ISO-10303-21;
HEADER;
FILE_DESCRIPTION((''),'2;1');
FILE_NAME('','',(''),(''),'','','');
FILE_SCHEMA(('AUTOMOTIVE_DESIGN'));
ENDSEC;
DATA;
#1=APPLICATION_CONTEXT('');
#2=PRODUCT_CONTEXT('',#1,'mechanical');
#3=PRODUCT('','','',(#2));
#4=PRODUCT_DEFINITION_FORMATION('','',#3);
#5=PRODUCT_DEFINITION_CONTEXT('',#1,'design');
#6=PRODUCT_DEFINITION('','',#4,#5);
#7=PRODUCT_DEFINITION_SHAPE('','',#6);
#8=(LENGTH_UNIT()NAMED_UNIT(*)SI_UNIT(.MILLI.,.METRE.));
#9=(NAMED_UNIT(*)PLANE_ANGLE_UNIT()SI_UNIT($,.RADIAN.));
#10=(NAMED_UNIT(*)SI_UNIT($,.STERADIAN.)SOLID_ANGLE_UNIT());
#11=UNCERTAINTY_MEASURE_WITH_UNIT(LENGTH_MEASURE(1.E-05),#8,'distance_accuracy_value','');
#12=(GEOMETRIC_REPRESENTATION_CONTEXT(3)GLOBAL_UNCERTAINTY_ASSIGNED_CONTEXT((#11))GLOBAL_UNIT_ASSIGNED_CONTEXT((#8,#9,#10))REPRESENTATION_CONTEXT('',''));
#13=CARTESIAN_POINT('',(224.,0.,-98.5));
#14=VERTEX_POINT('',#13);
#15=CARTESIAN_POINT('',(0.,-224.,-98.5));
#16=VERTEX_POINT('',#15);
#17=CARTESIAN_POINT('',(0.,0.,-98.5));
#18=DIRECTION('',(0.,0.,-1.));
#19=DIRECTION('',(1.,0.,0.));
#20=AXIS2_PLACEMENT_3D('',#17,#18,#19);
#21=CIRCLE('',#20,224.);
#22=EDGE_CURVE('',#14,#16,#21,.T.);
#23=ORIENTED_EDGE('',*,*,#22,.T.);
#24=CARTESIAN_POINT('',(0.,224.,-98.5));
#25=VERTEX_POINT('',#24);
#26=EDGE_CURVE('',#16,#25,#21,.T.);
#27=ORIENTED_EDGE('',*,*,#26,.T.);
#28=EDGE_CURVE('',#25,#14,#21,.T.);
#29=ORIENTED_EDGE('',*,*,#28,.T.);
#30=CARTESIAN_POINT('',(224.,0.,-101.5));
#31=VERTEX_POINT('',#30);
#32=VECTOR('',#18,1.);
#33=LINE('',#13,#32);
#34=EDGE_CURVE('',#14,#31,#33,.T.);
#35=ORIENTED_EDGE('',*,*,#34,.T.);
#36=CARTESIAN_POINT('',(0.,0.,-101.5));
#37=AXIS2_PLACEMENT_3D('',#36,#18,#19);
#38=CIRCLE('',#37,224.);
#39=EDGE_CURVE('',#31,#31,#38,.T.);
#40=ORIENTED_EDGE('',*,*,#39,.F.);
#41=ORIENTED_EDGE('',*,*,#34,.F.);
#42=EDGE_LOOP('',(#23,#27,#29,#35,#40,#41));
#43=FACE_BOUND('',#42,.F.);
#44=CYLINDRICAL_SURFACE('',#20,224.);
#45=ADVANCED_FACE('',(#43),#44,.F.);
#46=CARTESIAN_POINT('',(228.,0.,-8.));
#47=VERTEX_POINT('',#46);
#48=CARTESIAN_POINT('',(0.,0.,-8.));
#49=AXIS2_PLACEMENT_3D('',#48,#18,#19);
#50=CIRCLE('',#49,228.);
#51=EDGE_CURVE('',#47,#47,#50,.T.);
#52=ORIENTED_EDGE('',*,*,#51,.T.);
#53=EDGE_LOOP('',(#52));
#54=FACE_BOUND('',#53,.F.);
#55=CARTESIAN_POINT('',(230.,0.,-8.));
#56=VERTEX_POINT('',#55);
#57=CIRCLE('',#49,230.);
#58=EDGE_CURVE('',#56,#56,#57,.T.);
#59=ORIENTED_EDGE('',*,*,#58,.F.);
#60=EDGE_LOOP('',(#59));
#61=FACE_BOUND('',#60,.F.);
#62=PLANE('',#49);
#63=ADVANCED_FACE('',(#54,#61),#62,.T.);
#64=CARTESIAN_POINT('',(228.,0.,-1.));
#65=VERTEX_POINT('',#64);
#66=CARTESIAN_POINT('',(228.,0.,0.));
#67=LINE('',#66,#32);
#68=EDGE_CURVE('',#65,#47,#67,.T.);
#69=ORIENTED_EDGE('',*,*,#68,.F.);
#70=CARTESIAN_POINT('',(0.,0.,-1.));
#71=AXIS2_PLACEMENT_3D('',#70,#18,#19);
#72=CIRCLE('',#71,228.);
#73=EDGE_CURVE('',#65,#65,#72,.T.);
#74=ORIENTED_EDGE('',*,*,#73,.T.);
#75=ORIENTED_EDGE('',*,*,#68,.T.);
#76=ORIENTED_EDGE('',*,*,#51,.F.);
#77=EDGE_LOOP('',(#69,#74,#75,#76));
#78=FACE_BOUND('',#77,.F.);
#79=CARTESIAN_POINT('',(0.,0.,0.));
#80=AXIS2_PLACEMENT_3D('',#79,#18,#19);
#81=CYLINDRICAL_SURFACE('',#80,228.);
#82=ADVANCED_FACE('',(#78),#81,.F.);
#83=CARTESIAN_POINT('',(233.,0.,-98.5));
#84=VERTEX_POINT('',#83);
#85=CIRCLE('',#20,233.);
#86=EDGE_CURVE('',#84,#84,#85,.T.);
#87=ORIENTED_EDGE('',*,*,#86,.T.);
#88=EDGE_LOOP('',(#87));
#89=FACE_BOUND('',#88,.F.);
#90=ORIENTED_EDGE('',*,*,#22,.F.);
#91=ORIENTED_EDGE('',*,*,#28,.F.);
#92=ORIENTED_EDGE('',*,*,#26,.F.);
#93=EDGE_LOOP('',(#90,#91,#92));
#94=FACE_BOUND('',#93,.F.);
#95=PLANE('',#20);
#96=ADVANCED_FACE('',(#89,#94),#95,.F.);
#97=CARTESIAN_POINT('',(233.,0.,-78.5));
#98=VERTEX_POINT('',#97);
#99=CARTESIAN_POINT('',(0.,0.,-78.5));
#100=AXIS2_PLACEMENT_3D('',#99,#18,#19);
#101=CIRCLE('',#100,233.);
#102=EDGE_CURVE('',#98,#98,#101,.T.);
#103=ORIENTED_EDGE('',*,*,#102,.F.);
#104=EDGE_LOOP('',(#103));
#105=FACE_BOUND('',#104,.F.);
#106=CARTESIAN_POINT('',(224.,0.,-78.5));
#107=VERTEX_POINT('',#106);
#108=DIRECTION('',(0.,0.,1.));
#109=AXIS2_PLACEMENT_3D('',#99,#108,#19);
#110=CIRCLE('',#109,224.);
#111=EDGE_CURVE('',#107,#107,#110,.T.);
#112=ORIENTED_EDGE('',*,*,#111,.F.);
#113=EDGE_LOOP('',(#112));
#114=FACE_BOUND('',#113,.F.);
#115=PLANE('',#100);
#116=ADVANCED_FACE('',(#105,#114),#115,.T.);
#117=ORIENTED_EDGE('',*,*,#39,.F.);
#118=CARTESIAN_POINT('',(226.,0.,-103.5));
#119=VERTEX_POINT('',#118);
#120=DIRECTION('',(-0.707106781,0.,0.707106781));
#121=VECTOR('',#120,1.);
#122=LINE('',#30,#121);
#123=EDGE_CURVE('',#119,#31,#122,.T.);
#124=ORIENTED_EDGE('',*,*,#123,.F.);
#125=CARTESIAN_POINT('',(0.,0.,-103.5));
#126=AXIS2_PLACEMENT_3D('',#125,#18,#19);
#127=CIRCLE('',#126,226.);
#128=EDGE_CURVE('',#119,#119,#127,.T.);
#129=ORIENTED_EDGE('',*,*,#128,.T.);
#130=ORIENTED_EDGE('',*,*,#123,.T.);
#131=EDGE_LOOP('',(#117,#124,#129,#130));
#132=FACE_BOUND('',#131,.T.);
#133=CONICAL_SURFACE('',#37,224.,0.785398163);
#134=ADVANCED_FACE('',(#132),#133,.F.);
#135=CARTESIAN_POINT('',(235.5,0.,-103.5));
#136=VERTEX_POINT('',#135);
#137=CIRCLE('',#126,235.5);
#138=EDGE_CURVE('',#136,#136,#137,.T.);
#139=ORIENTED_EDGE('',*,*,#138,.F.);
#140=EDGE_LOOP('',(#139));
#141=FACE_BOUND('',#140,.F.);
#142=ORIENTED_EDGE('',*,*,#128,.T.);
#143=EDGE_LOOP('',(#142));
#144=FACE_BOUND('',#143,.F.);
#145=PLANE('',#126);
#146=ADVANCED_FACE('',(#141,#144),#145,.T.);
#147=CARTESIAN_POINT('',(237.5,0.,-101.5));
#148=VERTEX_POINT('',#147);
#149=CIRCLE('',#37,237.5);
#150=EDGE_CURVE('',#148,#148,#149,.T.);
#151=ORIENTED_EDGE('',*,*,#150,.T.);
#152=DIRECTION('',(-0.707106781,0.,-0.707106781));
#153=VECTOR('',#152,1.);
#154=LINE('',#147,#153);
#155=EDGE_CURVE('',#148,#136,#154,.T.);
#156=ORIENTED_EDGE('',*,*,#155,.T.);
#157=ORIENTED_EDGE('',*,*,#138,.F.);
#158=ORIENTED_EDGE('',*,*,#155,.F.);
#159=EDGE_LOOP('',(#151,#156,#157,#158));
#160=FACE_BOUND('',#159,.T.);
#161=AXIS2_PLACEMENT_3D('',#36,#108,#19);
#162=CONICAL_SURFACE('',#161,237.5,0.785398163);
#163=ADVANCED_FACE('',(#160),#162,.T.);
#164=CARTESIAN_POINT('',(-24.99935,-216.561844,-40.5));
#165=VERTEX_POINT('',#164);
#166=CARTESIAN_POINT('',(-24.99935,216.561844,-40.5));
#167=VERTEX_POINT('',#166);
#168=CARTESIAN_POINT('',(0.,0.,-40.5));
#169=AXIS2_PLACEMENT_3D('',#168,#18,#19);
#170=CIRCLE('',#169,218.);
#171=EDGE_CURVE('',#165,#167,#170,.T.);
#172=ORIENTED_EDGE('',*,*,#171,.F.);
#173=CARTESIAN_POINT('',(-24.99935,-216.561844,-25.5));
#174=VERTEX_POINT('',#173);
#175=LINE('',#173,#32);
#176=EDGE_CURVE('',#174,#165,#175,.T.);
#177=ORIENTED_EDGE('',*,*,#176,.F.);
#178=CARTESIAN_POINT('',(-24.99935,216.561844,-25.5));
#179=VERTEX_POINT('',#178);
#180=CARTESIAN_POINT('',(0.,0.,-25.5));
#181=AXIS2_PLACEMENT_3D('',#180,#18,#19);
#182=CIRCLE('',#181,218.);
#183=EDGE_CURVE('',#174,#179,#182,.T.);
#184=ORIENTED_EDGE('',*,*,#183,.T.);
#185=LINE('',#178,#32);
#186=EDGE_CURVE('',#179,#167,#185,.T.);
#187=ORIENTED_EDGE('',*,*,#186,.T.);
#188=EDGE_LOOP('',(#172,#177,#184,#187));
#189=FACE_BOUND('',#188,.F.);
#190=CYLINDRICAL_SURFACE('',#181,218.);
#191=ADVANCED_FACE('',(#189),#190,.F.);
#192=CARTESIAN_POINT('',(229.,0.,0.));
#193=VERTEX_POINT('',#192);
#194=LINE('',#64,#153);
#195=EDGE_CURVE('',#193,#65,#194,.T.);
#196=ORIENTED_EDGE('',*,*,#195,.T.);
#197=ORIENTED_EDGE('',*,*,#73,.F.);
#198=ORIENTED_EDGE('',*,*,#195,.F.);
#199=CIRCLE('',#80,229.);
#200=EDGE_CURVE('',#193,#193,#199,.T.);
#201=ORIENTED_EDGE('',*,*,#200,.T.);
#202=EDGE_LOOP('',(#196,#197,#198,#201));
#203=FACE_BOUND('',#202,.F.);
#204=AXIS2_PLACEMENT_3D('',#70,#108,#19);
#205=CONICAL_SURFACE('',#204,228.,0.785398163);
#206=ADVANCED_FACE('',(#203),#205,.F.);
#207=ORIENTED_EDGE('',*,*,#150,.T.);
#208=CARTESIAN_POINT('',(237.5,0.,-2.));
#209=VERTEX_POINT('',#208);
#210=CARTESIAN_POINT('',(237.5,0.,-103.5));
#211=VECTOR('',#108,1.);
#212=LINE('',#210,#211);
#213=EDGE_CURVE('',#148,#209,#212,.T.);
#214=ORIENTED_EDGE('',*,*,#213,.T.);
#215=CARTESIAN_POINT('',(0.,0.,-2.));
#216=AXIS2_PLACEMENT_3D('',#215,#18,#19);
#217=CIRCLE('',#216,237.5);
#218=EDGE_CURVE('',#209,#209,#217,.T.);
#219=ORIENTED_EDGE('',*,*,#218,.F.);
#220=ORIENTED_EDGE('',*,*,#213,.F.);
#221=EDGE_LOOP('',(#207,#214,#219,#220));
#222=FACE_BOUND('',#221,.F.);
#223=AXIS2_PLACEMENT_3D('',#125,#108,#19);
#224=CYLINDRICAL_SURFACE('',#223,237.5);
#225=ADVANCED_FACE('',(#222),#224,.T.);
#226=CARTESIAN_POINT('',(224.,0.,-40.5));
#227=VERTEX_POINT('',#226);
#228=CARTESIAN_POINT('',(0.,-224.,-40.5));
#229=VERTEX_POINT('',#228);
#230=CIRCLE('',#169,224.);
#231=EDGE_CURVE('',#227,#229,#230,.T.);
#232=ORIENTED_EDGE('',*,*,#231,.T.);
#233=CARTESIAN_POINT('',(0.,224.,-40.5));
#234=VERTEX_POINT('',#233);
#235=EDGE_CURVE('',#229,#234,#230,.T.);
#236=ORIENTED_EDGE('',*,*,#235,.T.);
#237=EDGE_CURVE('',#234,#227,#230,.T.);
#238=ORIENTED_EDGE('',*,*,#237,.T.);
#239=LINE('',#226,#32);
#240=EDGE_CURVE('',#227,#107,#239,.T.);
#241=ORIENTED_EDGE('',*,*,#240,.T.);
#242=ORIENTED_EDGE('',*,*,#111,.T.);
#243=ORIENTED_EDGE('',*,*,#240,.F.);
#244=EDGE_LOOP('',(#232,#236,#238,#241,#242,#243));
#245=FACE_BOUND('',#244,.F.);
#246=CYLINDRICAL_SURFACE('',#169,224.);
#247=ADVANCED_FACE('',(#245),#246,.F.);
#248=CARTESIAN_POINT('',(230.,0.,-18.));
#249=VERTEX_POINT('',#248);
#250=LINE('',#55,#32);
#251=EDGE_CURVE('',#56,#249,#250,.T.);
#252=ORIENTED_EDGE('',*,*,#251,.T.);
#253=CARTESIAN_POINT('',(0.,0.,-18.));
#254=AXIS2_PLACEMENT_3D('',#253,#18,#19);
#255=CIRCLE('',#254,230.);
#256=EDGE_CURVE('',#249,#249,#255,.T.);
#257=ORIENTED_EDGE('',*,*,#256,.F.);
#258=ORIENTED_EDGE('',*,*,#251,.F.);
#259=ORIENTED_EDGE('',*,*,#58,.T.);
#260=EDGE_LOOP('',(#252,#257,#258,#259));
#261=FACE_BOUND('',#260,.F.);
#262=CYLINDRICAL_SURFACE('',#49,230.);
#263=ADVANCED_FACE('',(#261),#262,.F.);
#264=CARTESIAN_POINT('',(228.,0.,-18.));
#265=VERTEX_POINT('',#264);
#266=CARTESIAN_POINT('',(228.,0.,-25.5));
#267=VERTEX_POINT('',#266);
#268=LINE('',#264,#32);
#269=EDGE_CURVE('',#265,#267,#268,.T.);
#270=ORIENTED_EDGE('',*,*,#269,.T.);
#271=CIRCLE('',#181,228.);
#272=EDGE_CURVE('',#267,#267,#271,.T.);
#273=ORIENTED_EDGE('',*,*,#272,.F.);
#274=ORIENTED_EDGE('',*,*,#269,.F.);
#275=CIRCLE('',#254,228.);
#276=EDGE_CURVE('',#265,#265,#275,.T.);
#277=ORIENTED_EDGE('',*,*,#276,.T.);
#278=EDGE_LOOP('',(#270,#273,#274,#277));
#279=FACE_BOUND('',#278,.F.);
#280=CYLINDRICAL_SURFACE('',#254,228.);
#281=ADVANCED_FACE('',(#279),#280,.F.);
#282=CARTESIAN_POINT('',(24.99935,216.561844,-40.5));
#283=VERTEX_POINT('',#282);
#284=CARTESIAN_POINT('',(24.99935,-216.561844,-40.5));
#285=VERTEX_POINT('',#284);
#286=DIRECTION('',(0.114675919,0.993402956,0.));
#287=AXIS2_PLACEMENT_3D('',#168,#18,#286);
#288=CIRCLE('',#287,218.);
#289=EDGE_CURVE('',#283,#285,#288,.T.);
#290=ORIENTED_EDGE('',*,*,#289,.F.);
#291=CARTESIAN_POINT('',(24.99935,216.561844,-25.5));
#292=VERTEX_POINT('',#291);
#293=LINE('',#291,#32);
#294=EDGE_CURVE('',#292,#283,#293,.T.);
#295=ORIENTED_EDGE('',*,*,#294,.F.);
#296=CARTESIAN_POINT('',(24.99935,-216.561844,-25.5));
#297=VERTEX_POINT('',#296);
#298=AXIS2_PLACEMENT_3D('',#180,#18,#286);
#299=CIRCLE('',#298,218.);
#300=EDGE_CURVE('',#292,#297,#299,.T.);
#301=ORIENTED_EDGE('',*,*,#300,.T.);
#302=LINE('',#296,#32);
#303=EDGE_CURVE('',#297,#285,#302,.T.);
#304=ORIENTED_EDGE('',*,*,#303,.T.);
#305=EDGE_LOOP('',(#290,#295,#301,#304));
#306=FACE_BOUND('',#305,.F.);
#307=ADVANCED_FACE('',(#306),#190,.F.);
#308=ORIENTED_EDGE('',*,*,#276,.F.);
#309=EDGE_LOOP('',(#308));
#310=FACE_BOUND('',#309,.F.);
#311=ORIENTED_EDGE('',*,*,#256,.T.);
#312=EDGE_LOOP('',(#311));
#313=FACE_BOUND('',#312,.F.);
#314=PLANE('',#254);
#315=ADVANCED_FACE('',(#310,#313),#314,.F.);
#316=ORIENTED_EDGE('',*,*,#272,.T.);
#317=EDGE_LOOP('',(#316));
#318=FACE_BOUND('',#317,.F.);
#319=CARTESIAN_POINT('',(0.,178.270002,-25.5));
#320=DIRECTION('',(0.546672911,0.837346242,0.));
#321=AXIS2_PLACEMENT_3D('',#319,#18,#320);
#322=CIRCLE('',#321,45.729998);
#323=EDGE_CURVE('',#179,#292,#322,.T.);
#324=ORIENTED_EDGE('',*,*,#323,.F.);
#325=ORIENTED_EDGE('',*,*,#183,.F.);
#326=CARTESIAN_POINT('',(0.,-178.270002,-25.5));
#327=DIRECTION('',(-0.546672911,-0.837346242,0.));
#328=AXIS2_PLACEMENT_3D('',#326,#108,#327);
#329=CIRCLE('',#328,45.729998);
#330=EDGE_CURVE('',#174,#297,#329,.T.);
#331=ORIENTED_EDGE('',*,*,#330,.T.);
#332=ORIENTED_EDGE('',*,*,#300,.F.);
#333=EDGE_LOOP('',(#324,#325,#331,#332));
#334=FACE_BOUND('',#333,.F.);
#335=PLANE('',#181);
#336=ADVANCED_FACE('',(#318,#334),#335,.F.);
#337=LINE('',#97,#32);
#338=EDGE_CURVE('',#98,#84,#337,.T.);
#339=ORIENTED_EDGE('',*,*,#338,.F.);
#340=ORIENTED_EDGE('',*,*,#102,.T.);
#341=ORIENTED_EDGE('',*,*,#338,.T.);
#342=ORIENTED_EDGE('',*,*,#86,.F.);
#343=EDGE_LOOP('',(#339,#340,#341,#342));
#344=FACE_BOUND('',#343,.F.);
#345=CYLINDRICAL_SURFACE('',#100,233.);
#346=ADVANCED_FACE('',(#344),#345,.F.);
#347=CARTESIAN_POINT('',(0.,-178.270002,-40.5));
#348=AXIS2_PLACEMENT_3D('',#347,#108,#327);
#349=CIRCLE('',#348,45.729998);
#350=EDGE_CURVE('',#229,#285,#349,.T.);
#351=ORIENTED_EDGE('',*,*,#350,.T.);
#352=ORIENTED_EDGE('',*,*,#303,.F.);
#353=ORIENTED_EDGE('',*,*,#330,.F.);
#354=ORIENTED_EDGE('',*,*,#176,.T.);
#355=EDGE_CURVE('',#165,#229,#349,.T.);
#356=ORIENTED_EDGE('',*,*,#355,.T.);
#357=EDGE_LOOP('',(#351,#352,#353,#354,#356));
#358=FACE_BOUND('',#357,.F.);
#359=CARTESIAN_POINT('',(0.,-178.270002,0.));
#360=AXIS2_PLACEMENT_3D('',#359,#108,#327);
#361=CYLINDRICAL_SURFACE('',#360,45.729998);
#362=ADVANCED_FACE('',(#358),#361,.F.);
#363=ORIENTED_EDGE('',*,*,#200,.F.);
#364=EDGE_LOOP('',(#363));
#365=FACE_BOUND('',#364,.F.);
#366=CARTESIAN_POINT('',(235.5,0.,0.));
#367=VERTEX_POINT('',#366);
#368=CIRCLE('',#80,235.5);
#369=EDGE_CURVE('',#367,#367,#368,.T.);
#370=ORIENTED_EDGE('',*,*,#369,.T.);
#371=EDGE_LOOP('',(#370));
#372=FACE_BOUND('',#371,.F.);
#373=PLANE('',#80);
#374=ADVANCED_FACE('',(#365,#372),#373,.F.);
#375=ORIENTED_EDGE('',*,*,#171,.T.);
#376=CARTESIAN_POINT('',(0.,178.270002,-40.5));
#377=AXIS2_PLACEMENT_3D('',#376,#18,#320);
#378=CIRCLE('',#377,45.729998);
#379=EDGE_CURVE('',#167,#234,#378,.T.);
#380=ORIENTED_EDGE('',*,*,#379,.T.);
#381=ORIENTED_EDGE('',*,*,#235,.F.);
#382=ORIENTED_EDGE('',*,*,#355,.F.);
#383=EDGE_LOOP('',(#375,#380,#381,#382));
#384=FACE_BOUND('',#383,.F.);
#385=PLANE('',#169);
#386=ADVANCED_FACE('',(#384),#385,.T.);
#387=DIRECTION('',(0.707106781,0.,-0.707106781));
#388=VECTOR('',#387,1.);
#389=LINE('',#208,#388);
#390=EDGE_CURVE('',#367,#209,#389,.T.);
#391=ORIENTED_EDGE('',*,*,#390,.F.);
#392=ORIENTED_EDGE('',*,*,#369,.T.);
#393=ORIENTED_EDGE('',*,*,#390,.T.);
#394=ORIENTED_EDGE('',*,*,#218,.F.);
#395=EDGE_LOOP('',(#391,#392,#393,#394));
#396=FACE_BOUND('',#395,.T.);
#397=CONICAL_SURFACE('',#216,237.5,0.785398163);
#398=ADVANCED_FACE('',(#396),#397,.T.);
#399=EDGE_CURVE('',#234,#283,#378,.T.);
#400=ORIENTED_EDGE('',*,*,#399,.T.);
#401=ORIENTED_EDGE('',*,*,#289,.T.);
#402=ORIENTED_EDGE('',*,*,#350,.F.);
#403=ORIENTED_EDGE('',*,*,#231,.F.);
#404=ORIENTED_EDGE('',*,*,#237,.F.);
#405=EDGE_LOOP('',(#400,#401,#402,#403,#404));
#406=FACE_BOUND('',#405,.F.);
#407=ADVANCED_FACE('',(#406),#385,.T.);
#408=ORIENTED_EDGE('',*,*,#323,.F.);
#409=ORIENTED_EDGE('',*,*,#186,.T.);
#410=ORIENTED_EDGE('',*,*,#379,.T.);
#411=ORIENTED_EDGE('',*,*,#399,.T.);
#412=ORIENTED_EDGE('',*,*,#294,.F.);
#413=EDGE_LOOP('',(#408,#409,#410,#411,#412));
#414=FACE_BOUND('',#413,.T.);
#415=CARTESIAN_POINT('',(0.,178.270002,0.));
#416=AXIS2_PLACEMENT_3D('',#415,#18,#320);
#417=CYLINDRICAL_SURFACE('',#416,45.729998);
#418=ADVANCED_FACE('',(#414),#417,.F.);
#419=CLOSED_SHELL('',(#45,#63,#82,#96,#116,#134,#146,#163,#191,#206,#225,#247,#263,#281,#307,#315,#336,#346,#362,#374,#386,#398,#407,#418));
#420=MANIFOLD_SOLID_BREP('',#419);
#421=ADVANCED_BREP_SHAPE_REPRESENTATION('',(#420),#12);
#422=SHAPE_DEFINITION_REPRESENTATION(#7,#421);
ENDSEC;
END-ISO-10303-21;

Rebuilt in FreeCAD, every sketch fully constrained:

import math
import FreeCAD as App
import Part
import Sketcher
Q = App.Units.Quantity


def edges_at(feature, points):
    """Names of the edges that pass closest to the given points."""
    edges = feature.Shape.Edges
    near = lambda p: min(range(len(edges)), key=lambda i: edges[i].distToShape(Part.Vertex(*p))[0])
    return sorted({f"Edge{near(p) + 1}" for p in points})


def add_polygon(sketch, points):
    """Adds a closed chain of lines whose ends are joined by coincident constraints."""
    first, n = sketch.GeometryCount, len(points)
    for a, b in zip(points, points[1:] + points[:1]):
        sketch.addGeometry(Part.LineSegment(App.Vector(*a, 0), App.Vector(*b, 0)), False)
    for i in range(n):
        sketch.addConstraint(Sketcher.Constraint("Coincident", first + i, 2, first + (i + 1) % n, 1))

doc = App.newDocument("Part")
body = doc.addObject("PartDesign::Body", "Body")

# Sketch on XZ plane
sketch1 = body.newObject("Sketcher::SketchObject", "Sketch")
sketch1.AttachmentSupport = (doc.getObject("XZ_Plane"), [""])
sketch1.MapMode = "FlatFace"
add_polygon(sketch1, [(237.5, -103.5), (237.5, 0), (228, 0), (228, -8), (230, -8), (230, -18), (228, -18), (228, -25.5), (218, -25.5), (218, -40.5), (224, -40.5), (224, -78.5), (233, -78.5), (233, -98.5), (224, -98.5), (224, -103.5)])  # lines 0-15
sketch1.addConstraint([
    Sketcher.Constraint("Vertical", 0),
    Sketcher.Constraint("Horizontal", 1),
    Sketcher.Constraint("Vertical", 2),
    Sketcher.Constraint("Horizontal", 3),
    Sketcher.Constraint("Vertical", 4),
    Sketcher.Constraint("Horizontal", 5),
    Sketcher.Constraint("Vertical", 6),
    Sketcher.Constraint("Horizontal", 7),
    Sketcher.Constraint("Vertical", 8),
    Sketcher.Constraint("Horizontal", 9),
    Sketcher.Constraint("Vertical", 10),
    Sketcher.Constraint("Horizontal", 11),
    Sketcher.Constraint("Vertical", 12),
    Sketcher.Constraint("Horizontal", 13),
    Sketcher.Constraint("Vertical", 14),
    Sketcher.Constraint("Horizontal", 15),
    Sketcher.Constraint("PointOnObject", 0, 2, -1),
    Sketcher.Constraint("Vertical", 2, 2, 5, 2),
    Sketcher.Constraint("Vertical", 10, 2, 13, 2),
    Sketcher.Constraint("Equal", 7, 4),
    Sketcher.Constraint("DistanceX", 3, 1, 3, 2, Q("2 mm")),
    Sketcher.Constraint("DistanceX", 7, 2, 7, 1, Q("10 mm")),
    Sketcher.Constraint("DistanceX", 9, 1, 9, 2, Q("6 mm")),
    Sketcher.Constraint("DistanceX", 11, 1, 11, 2, Q("9 mm")),
    Sketcher.Constraint("DistanceY", 2, 2, 2, 1, Q("8 mm")),
    Sketcher.Constraint("DistanceY", 8, 2, 8, 1, Q("15 mm")),
    Sketcher.Constraint("DistanceY", 10, 2, 10, 1, Q("38 mm")),
    Sketcher.Constraint("DistanceY", 12, 2, 12, 1, Q("20 mm")),
    Sketcher.Constraint("DistanceY", 14, 2, 14, 1, Q("5 mm")),
    Sketcher.Constraint("DistanceX", 1, 2, 1, 1, Q("9.5 mm")),
    Sketcher.Constraint("DistanceY", 0, 1, 0, 2, Q("103.5 mm")),
    Sketcher.Constraint("DistanceX", -1, 1, 1, 2, Q("228 mm")),
])
revolution = body.newObject("PartDesign::Revolution", "Revolution")
revolution.Profile = sketch1
revolution.ReferenceAxis = (sketch1, ["V_Axis"])
revolution.Angle = 360
doc.recompute()

chamfer = body.newObject("PartDesign::Chamfer", "Chamfer")
chamfer.Base = (revolution, edges_at(revolution, [(-228, 0, 0)]))
chamfer.Size = 1
doc.recompute()

chamfer2 = body.newObject("PartDesign::Chamfer", "Chamfer001")
chamfer2.Base = (chamfer, edges_at(chamfer, [(-237.5, 0, 0), (-224, 0, -103.5), (-237.5, 0, -103.5)]))
chamfer2.Size = 2

# Sketch on XY plane
sketch2 = body.newObject("Sketcher::SketchObject", "Sketch001")
sketch2.AttachmentSupport = (doc.getObject("XY_Plane"), [""])
sketch2.MapMode = "FlatFace"
sketch2.addGeometry([
    Part.ArcOfCircle(Part.Circle(App.Vector(0, 0.00006, 0), App.Vector(0, 0, 1), 217.99994), math.radians(83.415065), math.radians(96.584935)),
    Part.ArcOfCircle(Part.Circle(App.Vector(0, 178.270002, 0), App.Vector(0, 0, 1), 45.729998), math.radians(56.860941), math.radians(123.139059)),
    Part.ArcOfCircle(Part.Circle(App.Vector(0, -178.270002, 0), App.Vector(0, 0, 1), 45.729998), math.radians(-123.139059), math.radians(-56.860941)),
    Part.ArcOfCircle(Part.Circle(App.Vector(0, -0.00006, 0), App.Vector(0, 0, 1), 217.99994), math.radians(-96.584935), math.radians(-83.415065)),
], False)
sketch2.addConstraint([
    Sketcher.Constraint("Coincident", 0, 1, 1, 1),
    Sketcher.Constraint("Coincident", 1, 2, 0, 2),
    Sketcher.Constraint("Coincident", 2, 1, 3, 1),
    Sketcher.Constraint("Coincident", 3, 2, 2, 2),
    Sketcher.Constraint("Equal", 1, 2),
    Sketcher.Constraint("Equal", 0, 3),
    Sketcher.Constraint("Symmetric", 1, 3, 2, 3, -1, 1),
    Sketcher.Constraint("Symmetric", 0, 3, 3, 3, -1, 1),
    Sketcher.Constraint("Symmetric", 0, 1, 1, 2, -2),
    Sketcher.Constraint("Radius", 0, Q("217.99994 mm")),
    Sketcher.Constraint("Radius", 1, Q("45.729998 mm")),
    Sketcher.Constraint("DistanceX", -1, 1, 0, 1, Q("24.999351 mm")),
    Sketcher.Constraint("DistanceY", 3, 3, 0, 3, Q("0.00012 mm")),
])
pocket1 = body.newObject("PartDesign::Pocket", "Pocket")
pocket1.Profile = sketch2
pocket1.Length = 200
pocket1.Midplane = True

doc.recompute()
